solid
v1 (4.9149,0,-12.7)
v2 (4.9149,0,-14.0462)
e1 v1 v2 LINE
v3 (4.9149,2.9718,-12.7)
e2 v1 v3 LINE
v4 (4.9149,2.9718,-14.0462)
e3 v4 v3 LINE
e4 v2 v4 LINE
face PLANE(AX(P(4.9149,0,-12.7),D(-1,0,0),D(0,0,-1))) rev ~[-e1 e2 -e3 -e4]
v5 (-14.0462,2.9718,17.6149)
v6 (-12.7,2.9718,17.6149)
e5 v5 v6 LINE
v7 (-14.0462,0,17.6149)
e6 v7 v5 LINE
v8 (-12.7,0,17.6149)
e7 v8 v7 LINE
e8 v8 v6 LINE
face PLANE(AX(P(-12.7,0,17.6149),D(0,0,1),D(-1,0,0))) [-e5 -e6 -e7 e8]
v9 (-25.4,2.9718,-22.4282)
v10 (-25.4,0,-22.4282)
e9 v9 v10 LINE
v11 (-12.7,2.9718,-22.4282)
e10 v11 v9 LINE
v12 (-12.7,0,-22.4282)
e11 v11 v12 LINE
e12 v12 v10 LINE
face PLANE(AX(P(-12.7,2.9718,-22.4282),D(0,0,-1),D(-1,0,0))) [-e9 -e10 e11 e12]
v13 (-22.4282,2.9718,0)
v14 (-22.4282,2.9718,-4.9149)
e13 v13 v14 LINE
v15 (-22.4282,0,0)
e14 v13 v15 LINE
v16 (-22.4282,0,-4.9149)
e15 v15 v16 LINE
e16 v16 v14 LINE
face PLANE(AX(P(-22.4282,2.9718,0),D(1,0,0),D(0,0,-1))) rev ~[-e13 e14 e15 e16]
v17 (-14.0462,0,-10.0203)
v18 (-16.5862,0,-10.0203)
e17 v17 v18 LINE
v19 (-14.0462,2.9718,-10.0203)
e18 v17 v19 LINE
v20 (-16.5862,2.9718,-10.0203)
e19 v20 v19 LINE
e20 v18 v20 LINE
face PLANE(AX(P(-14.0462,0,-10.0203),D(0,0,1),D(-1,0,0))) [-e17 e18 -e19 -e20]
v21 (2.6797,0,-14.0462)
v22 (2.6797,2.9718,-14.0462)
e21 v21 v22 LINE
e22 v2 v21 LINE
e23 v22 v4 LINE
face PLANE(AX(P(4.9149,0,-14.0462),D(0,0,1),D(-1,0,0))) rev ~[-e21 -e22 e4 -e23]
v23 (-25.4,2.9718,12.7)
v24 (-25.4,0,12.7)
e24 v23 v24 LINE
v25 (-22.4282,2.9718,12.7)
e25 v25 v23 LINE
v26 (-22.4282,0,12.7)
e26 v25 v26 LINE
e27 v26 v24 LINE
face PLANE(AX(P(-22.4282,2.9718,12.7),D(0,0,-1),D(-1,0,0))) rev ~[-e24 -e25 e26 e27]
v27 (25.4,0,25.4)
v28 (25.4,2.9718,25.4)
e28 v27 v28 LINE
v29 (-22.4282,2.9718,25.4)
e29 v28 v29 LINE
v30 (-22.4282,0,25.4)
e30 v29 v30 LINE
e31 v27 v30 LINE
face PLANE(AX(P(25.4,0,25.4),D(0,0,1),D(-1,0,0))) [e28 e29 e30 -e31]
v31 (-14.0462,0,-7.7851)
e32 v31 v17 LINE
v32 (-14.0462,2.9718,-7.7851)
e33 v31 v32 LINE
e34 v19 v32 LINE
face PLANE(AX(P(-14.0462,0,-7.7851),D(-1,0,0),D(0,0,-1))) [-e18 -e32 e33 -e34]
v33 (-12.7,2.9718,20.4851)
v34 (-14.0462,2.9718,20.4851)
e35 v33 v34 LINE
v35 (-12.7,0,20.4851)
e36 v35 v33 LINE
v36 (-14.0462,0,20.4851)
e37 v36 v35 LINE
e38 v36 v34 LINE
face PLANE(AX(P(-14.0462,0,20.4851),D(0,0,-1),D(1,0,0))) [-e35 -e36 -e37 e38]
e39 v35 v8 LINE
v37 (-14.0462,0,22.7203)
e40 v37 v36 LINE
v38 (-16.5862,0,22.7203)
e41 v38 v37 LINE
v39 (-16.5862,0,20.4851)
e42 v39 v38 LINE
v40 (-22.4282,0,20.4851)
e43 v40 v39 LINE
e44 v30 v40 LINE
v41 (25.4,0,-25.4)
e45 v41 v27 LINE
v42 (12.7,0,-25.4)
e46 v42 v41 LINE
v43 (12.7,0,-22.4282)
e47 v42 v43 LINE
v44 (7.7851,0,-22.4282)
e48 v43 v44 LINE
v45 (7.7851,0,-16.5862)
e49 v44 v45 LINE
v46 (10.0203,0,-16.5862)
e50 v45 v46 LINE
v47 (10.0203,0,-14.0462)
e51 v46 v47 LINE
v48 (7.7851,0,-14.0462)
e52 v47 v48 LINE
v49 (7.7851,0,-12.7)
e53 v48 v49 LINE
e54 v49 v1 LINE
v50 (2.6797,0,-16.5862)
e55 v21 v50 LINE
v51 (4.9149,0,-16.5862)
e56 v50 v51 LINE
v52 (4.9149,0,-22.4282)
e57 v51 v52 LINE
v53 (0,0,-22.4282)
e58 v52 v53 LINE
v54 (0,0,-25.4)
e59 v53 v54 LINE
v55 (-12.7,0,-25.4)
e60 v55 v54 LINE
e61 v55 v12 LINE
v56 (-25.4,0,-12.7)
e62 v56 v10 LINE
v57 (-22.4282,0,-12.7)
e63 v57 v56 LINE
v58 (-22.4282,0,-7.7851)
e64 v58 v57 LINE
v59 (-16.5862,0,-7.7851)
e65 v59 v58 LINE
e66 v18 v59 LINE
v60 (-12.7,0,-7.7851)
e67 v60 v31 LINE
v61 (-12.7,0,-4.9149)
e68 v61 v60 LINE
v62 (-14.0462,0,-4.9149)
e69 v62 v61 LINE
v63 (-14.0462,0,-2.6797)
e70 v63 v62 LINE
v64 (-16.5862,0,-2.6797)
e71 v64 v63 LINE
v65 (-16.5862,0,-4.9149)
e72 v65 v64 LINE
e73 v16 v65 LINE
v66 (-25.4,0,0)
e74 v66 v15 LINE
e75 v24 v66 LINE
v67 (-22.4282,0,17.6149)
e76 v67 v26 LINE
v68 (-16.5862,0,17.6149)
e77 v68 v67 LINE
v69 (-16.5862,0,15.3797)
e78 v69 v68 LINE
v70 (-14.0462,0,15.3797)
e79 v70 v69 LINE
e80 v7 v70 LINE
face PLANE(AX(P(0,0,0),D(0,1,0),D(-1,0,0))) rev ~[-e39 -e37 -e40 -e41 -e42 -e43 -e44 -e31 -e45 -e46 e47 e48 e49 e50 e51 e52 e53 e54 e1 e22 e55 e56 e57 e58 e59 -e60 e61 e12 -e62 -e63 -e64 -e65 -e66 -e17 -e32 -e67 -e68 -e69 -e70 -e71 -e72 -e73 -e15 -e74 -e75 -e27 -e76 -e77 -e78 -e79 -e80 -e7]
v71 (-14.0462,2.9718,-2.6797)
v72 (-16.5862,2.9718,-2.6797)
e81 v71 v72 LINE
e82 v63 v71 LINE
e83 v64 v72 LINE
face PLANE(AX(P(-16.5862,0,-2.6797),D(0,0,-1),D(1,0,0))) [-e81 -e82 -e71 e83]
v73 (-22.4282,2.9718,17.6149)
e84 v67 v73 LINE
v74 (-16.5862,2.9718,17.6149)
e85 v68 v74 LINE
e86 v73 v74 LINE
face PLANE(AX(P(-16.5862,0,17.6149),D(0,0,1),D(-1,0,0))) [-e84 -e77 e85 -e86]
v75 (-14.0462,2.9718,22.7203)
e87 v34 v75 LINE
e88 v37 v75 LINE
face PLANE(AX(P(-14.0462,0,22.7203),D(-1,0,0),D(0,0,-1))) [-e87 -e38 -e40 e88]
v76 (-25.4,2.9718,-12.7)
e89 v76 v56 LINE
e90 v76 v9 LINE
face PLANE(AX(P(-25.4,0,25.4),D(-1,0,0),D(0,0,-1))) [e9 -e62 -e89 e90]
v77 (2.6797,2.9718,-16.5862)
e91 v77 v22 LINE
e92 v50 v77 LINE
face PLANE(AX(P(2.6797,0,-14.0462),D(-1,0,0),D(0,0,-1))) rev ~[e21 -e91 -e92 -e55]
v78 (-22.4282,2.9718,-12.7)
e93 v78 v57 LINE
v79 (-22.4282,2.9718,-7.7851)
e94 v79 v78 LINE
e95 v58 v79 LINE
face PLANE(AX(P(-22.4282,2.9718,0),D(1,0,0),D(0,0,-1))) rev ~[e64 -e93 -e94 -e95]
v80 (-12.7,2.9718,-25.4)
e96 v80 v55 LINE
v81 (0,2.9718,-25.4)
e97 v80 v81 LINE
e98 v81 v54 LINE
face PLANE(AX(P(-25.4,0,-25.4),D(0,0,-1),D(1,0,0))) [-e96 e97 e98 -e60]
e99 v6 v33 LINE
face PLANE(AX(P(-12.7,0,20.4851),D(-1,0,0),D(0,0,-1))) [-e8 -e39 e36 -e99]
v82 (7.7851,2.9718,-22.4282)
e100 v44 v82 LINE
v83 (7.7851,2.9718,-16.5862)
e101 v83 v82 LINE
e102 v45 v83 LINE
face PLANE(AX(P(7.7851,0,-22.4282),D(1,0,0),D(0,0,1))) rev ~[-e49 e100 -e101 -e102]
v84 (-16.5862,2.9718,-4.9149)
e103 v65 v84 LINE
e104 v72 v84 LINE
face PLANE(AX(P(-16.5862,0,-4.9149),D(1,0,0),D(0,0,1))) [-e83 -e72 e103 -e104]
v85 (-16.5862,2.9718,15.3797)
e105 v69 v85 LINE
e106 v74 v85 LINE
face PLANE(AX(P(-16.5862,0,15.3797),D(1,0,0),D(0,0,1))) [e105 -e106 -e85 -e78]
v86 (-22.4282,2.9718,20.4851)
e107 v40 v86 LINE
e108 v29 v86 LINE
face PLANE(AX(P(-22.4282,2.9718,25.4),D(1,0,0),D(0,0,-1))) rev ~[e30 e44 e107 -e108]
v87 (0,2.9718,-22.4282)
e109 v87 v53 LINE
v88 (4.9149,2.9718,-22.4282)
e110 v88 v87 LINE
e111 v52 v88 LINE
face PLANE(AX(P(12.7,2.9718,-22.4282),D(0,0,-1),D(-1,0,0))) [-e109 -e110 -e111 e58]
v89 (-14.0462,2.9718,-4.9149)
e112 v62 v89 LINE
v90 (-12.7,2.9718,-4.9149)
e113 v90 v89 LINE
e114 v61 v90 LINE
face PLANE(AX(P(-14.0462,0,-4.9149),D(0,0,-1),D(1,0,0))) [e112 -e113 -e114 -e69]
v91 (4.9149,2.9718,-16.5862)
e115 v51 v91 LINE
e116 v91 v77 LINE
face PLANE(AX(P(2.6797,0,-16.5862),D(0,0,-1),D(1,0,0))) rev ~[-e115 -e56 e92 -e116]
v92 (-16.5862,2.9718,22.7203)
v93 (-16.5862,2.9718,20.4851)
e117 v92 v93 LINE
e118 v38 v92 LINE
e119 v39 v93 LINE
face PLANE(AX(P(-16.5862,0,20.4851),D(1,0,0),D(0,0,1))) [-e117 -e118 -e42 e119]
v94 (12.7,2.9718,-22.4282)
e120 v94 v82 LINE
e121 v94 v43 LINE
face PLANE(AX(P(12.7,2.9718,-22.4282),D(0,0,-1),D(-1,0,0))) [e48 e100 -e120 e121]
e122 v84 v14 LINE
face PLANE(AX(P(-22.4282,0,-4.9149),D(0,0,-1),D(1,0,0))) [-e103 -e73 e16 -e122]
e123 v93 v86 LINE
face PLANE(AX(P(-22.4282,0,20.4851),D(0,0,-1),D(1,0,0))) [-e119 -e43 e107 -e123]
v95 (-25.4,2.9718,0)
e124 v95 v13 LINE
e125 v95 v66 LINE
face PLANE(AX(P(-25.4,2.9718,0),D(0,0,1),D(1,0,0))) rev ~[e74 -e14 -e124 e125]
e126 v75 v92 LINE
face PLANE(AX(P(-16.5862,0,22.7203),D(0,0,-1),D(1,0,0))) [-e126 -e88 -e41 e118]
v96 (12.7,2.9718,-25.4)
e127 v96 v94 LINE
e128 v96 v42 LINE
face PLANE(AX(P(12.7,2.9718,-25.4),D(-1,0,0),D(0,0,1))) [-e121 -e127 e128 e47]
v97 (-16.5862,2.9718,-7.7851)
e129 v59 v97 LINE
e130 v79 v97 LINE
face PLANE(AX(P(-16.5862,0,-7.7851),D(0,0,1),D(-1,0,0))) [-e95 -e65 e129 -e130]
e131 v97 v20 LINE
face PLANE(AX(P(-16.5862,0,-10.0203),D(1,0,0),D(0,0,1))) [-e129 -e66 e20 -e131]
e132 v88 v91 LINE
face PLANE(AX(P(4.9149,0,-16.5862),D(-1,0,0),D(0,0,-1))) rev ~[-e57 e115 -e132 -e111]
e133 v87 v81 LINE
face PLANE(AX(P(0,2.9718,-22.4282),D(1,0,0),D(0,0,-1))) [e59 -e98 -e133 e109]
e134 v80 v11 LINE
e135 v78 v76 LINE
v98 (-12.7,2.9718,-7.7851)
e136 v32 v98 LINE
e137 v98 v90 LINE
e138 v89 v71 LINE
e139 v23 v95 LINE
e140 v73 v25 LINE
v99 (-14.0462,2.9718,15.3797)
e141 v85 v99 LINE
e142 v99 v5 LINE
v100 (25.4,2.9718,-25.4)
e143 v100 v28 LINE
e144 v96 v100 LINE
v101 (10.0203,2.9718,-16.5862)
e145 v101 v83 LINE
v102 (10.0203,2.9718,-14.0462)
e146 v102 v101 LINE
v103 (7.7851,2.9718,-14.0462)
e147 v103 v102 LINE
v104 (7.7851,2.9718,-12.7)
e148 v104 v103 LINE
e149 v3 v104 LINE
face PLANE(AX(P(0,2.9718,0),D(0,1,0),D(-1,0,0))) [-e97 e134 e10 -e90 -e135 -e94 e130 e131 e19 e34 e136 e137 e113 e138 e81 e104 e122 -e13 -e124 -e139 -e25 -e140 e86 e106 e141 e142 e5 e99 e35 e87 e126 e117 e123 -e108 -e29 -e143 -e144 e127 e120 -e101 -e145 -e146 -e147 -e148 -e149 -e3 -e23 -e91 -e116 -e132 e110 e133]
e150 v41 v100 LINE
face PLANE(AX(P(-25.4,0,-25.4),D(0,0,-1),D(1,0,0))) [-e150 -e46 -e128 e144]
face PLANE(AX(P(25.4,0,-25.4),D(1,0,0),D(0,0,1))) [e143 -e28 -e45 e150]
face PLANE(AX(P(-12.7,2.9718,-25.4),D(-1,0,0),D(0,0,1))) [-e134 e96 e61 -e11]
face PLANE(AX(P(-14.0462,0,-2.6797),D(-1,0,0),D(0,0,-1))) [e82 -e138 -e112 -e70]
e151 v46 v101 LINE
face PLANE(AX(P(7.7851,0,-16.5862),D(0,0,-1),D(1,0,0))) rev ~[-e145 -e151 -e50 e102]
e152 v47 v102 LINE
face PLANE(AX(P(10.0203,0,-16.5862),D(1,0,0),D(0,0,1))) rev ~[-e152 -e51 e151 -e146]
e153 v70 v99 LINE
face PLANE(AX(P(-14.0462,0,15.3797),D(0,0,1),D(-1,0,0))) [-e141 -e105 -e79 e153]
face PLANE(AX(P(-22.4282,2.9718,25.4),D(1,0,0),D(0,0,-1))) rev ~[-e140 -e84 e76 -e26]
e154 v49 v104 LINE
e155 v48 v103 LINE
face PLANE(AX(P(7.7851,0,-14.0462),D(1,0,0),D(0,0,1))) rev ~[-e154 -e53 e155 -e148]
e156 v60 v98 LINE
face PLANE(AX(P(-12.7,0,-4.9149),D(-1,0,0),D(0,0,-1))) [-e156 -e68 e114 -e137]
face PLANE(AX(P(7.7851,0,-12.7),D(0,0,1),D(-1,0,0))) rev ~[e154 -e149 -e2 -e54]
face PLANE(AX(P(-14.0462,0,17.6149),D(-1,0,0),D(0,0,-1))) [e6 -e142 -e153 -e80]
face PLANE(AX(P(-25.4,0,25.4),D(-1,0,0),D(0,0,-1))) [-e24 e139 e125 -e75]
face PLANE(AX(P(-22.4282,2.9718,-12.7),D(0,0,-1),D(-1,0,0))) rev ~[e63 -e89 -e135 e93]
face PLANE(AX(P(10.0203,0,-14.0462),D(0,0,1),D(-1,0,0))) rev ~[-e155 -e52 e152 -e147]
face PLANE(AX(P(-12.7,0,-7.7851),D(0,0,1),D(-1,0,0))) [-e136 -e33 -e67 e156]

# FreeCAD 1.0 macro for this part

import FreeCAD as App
import Part
import Sketcher
from FreeCAD import Vector
Q = App.Units.Quantity


def add_polygon(sketch, points):
    """Adds a closed chain of lines whose ends are joined by coincident constraints."""
    first, n = sketch.GeometryCount, len(points)
    for a, b in zip(points, points[1:] + points[:1]):
        sketch.addGeometry(Part.LineSegment(App.Vector(*a, 0), App.Vector(*b, 0)), False)
    for i in range(n):
        sketch.addConstraint(Sketcher.Constraint("Coincident", first + i, 2, first + (i + 1) % n, 1))

doc = App.newDocument("Part")
params = doc.addObject("Spreadsheet::Sheet", "Params")
for row, (alias, value) in enumerate([
    ("sketch1_width", "2 in"),
    ("pad1_length", "0.117 in"),
    ("sketch2_width", "0.5 in"),
    ("sketch2_width2", "0.117 in"),
    ("pocket1_length", "0.117 in"),
    ("sketch3_width", "0.1 in"),
    ("sketch3_width2", "0.23 in"),
    ("sketch3_width3", "0.113 in"),
    ("sketch3_width4", "0.088 in"),
    ("sketch3_width5", "0.053 in"),
    ("pocket2_length", "1 in"),
], start=1):
    params.set(f"A{row}", alias)
    params.set(f"B{row}", "=" + value)
    params.setAlias(f"B{row}", alias)

body = doc.addObject("PartDesign::Body", "Body")

# Sketch on XZ plane
sketch1 = body.newObject("Sketcher::SketchObject", "Sketch")
sketch1.AttachmentSupport = (doc.getObject("XZ_Plane"), [""])
sketch1.MapMode = "FlatFace"
add_polygon(sketch1, [(-25, 25), (25, 25), (25, -25), (-25, -25)])  # lines 0-3
sketch1.addConstraint([
    Sketcher.Constraint("Horizontal", 0),
    Sketcher.Constraint("Vertical", 1),
    Sketcher.Constraint("Horizontal", 2),
    Sketcher.Constraint("Vertical", 3),
    Sketcher.Constraint("Symmetric", 0, 2, 2, 2, -1, 1),
    Sketcher.Constraint("Equal", 2, 1),
    Sketcher.Constraint("DistanceX", 0, 1, 0, 2, Q("2 in")),
])
sketch1.setExpression("Constraints[10]", "Params.sketch1_width")
pad1 = body.newObject("PartDesign::Pad", "Pad")
pad1.Profile = sketch1
pad1.setExpression("Length", "Params.pad1_length")
pad1.Reversed = True

# Sketch on XZ plane
sketch2 = body.newObject("Sketcher::SketchObject", "Sketch001")
sketch2.AttachmentSupport = (doc.getObject("XZ_Plane"), [""])
sketch2.MapMode = "FlatFace"
sketch2.AttachmentOffset = App.Placement(Vector(0, 0, -0.117 * 25.4), App.Rotation())
add_polygon(sketch2, [(-25.4, 12.7), (-25.4, 25.4), (-22.4, 25.4), (-22.4, 12.7)])  # lines 0-3
add_polygon(sketch2, [(12.7, -25.4), (0, -25.4), (0, -22.4), (12.7, -22.4)])  # lines 4-7
add_polygon(sketch2, [(-25.4, -25.4), (-25.4, -22.4), (-12.7, -22.4), (-12.7, -25.4)])  # lines 8-11
add_polygon(sketch2, [(-25.4, -12.7), (-25.4, 0), (-22.4, 0), (-22.4, -12.7)])  # lines 12-15
sketch2.addConstraint([
    Sketcher.Constraint("Vertical", 0),
    Sketcher.Constraint("Horizontal", 1),
    Sketcher.Constraint("Vertical", 2),
    Sketcher.Constraint("Horizontal", 3),
    Sketcher.Constraint("Horizontal", 4),
    Sketcher.Constraint("Vertical", 5),
    Sketcher.Constraint("Horizontal", 6),
    Sketcher.Constraint("Vertical", 7),
    Sketcher.Constraint("Vertical", 8),
    Sketcher.Constraint("Horizontal", 9),
    Sketcher.Constraint("Vertical", 10),
    Sketcher.Constraint("Horizontal", 11),
    Sketcher.Constraint("Vertical", 12),
    Sketcher.Constraint("Horizontal", 13),
    Sketcher.Constraint("Vertical", 14),
    Sketcher.Constraint("Horizontal", 15),
    Sketcher.Constraint("Symmetric", 6, 2, 9, 2, -2),
    Sketcher.Constraint("Symmetric", 0, 2, 11, 2, -1),
    Sketcher.Constraint("Symmetric", 2, 2, 14, 2, -1),
    Sketcher.Constraint("PointOnObject", 4, 2, -2),
    Sketcher.Constraint("PointOnObject", 12, 2, -1),
    Sketcher.Constraint("Horizontal", 7, 2, 10, 2),
    Sketcher.Constraint("Vertical", 11, 2, 12, 2),
    Sketcher.Constraint("Equal", 6, 9),
    Sketcher.Constraint("Equal", 11, 0),
    Sketcher.Constraint("Equal", 15, 5),
    Sketcher.Constraint("Equal", 2, 12),
    Sketcher.Constraint("DistanceX", 4, 2, 4, 1, Q("0.5 in")),
    Sketcher.Constraint("DistanceX", 1, 1, 1, 2, Q("0.117 in")),
])
sketch2.setExpression("Constraints[43]", "Params.sketch2_width")
sketch2.setExpression("Constraints[44]", "Params.sketch2_width2")
pocket1 = body.newObject("PartDesign::Pocket", "Pocket")
pocket1.Profile = sketch2
pocket1.setExpression("Length", "Params.pocket1_length")
pocket1.Reversed = True

# Sketch on XZ plane
sketch3 = body.newObject("Sketcher::SketchObject", "Sketch002")
sketch3.AttachmentSupport = (doc.getObject("XZ_Plane"), [""])
sketch3.MapMode = "FlatFace"
add_polygon(sketch3, [(7.8, -14), (7.8, -12.7), (4.9, -12.7), (4.9, -14), (2.7, -14), (2.7, -16.6), (4.9, -16.6), (4.9, -22.4), (7.8, -22.4), (7.8, -16.6), (10, -16.6), (10, -14)])  # lines 0-11
add_polygon(sketch3, [(-16.6, -10), (-14, -10), (-14, -7.8), (-12.7, -7.8), (-12.7, -4.9), (-14, -4.9), (-14, -2.7), (-16.6, -2.7), (-16.6, -4.9), (-22.4, -4.9), (-22.4, -7.8), (-16.6, -7.8)])  # lines 12-23
add_polygon(sketch3, [(-14, 15.4), (-14, 17.6), (-12.7, 17.6), (-12.7, 20.5), (-14, 20.5), (-14, 22.7), (-16.6, 22.7), (-16.6, 20.5), (-22.4, 20.5), (-22.4, 17.6), (-16.6, 17.6), (-16.6, 15.4)])  # lines 24-35
sketch3.addConstraint([
    Sketcher.Constraint("Vertical", 0),
    Sketcher.Constraint("Horizontal", 1),
    Sketcher.Constraint("Vertical", 2),
    Sketcher.Constraint("Horizontal", 3),
    Sketcher.Constraint("Vertical", 4),
    Sketcher.Constraint("Horizontal", 5),
    Sketcher.Constraint("Vertical", 6),
    Sketcher.Constraint("Horizontal", 7),
    Sketcher.Constraint("Vertical", 8),
    Sketcher.Constraint("Horizontal", 9),
    Sketcher.Constraint("Vertical", 10),
    Sketcher.Constraint("Horizontal", 11),
    Sketcher.Constraint("Horizontal", 12),
    Sketcher.Constraint("Vertical", 13),
    Sketcher.Constraint("Horizontal", 14),
    Sketcher.Constraint("Vertical", 15),
    Sketcher.Constraint("Horizontal", 16),
    Sketcher.Constraint("Vertical", 17),
    Sketcher.Constraint("Horizontal", 18),
    Sketcher.Constraint("Vertical", 19),
    Sketcher.Constraint("Horizontal", 20),
    Sketcher.Constraint("Vertical", 21),
    Sketcher.Constraint("Horizontal", 22),
    Sketcher.Constraint("Vertical", 23),
    Sketcher.Constraint("Vertical", 24),
    Sketcher.Constraint("Horizontal", 25),
    Sketcher.Constraint("Vertical", 26),
    Sketcher.Constraint("Horizontal", 27),
    Sketcher.Constraint("Vertical", 28),
    Sketcher.Constraint("Horizontal", 29),
    Sketcher.Constraint("Vertical", 30),
    Sketcher.Constraint("Horizontal", 31),
    Sketcher.Constraint("Vertical", 32),
    Sketcher.Constraint("Horizontal", 33),
    Sketcher.Constraint("Vertical", 34),
    Sketcher.Constraint("Horizontal", 35),
    Sketcher.Constraint("Horizontal", 5, 2, 8, 2),
    Sketcher.Constraint("Horizontal", 3, 2, 10, 2),
    Sketcher.Constraint("Horizontal", 16, 2, 19, 2),
    Sketcher.Constraint("Horizontal", 14, 2, 21, 2),
    Sketcher.Constraint("Horizontal", 27, 2, 30, 2),
    Sketcher.Constraint("Horizontal", 25, 2, 32, 2),
    Sketcher.Constraint("Vertical", 2, 2, 5, 2),
    Sketcher.Constraint("Vertical", 0, 2, 7, 2),
    Sketcher.Constraint("Vertical", 13, 2, 16, 2),
    Sketcher.Constraint("Vertical", 19, 2, 22, 2),
    Sketcher.Constraint("Vertical", 17, 2, 24, 2),
    Sketcher.Constraint("Vertical", 15, 2, 25, 2),
    Sketcher.Constraint("Vertical", 24, 2, 27, 2),
    Sketcher.Constraint("Vertical", 23, 2, 29, 2),
    Sketcher.Constraint("Vertical", 21, 2, 31, 2),
    Sketcher.Constraint("Vertical", 30, 2, 33, 2),
    Sketcher.Constraint("Equal", 5, 9),
    Sketcher.Constraint("Equal", 27, 0),
    Sketcher.Constraint("Equal", 35, 4),
    Sketcher.Constraint("Equal", 33, 6),
    Sketcher.Constraint("Equal", 11, 13),
    Sketcher.Constraint("Equal", 7, 15),
    Sketcher.Constraint("Equal", 13, 17),
    Sketcher.Constraint("Equal", 23, 24),
    Sketcher.Constraint("Equal", 21, 26),
    Sketcher.Constraint("Equal", 24, 28),
    Sketcher.Constraint("DistanceX", 12, 1, 12, 2, Q("0.1 in")),
    Sketcher.Constraint("DistanceY", 15, 2, 26, 2, Q("1 in")),
    Sketcher.Constraint("DistanceX", 20, 2, 20, 1, Q("0.23 in")),
    Sketcher.Constraint("DistanceX", 1, 2, 1, 1, Q("0.113 in")),
    Sketcher.Constraint("DistanceX", 3, 2, 3, 1, Q("0.088 in")),
    Sketcher.Constraint("DistanceX", 14, 1, 14, 2, Q("0.053 in")),
    Sketcher.Constraint("DistanceX", -1, 1, 1, 2, Q("0.1935 in")),
    Sketcher.Constraint("DistanceY", 15, 2, -1, 1, Q("0.1935 in")),
    Sketcher.Constraint("DistanceY", 0, 2, -1, 1, Q("0.5 in")),
    Sketcher.Constraint("DistanceX", 14, 2, -1, 1, Q("0.5 in")),
])
sketch3.setExpression("Constraints[98]", "Params.sketch3_width")
sketch3.setExpression("Constraints[100]", "Params.sketch3_width2")
sketch3.setExpression("Constraints[101]", "Params.sketch3_width3")
sketch3.setExpression("Constraints[102]", "Params.sketch3_width4")
sketch3.setExpression("Constraints[103]", "Params.sketch3_width5")
pocket2 = body.newObject("PartDesign::Pocket", "Pocket001")
pocket2.Profile = sketch3
pocket2.setExpression("Length", "Params.pocket2_length")

doc.recompute()
